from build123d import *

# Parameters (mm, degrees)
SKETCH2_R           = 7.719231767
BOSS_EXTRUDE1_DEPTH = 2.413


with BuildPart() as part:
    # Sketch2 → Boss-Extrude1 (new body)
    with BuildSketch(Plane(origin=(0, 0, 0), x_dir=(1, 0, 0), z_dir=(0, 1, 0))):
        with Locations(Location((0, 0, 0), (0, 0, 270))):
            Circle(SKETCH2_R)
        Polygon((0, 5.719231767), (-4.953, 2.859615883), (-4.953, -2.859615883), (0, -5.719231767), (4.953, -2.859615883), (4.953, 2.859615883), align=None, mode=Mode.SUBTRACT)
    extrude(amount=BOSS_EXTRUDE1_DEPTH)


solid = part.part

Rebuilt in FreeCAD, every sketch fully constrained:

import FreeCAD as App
import Part
import Sketcher

V = App.Vector
Q = App.Units.Quantity


def add_polygon(sketch, points):
    """Adds a closed chain of lines whose ends are joined by coincident constraints."""
    first, n = sketch.GeometryCount, len(points)
    for a, b in zip(points, points[1:] + points[:1]):
        sketch.addGeometry(Part.LineSegment(App.Vector(*a, 0), App.Vector(*b, 0)), False)
    for i in range(n):
        sketch.addConstraint(Sketcher.Constraint("Coincident", first + i, 2, first + (i + 1) % n, 1))

doc = App.newDocument("Part")
params = doc.addObject("Spreadsheet::Sheet", "Params")
for row, (alias, value) in enumerate([
    ("pad1_length", "0.095 in"),
], start=1):
    params.set(f"A{row}", alias)
    params.set(f"B{row}", "=" + value)
    params.setAlias(f"B{row}", alias)

body = doc.addObject("PartDesign::Body", "Body")

sketch1 = body.newObject("Sketcher::SketchObject", "Sketch")
sketch1.AttachmentSupport = (doc.getObject("XZ_Plane"), [""])
sketch1.MapMode = "FlatFace"
sketch1.addGeometry(Part.Circle(V(0, 0, 0), V(0, 0, 1), 8), False)
add_polygon(sketch1, [(-5, -3), (0, -6), (5, -3), (5, 3), (0, 6), (-5, 3)])
sketch1.addConstraint(Sketcher.Constraint("Vertical", 3))
sketch1.addConstraint(Sketcher.Constraint("Vertical", 6))
sketch1.addConstraint(Sketcher.Constraint("Coincident", 0, 3, -1, 1))
sketch1.addConstraint(Sketcher.Constraint("Symmetric", 1, 2, 4, 2, -1, 1))
sketch1.addConstraint(Sketcher.Constraint("Symmetric", 2, 2, 5, 2, -1, 1))
sketch1.addConstraint(Sketcher.Constraint("PointOnObject", 1, 2, -2))
sketch1.addConstraint(Sketcher.Constraint("Parallel", 1, 4))
sketch1.addConstraint(Sketcher.Constraint("Horizontal", 3, 2, 5, 2))
sketch1.addConstraint(Sketcher.Constraint("Angle", 1, Q("-30 deg")))
sketch1.addConstraint(Sketcher.Constraint("DistanceX", 5, 2, 3, 2, Q("0.39 in")))
sketch1.addConstraint(Sketcher.Constraint("Diameter", 0, Q("15.438464 mm")))
sketch1.addConstraint(Sketcher.Constraint("DistanceY", 3, 1, 3, 2, Q("5.719232 mm")))
pad1 = body.newObject("PartDesign::Pad", "Pad")
pad1.Profile = sketch1
pad1.setExpression("Length", "Params.pad1_length")
pad1.Reversed = True

doc.recompute()
